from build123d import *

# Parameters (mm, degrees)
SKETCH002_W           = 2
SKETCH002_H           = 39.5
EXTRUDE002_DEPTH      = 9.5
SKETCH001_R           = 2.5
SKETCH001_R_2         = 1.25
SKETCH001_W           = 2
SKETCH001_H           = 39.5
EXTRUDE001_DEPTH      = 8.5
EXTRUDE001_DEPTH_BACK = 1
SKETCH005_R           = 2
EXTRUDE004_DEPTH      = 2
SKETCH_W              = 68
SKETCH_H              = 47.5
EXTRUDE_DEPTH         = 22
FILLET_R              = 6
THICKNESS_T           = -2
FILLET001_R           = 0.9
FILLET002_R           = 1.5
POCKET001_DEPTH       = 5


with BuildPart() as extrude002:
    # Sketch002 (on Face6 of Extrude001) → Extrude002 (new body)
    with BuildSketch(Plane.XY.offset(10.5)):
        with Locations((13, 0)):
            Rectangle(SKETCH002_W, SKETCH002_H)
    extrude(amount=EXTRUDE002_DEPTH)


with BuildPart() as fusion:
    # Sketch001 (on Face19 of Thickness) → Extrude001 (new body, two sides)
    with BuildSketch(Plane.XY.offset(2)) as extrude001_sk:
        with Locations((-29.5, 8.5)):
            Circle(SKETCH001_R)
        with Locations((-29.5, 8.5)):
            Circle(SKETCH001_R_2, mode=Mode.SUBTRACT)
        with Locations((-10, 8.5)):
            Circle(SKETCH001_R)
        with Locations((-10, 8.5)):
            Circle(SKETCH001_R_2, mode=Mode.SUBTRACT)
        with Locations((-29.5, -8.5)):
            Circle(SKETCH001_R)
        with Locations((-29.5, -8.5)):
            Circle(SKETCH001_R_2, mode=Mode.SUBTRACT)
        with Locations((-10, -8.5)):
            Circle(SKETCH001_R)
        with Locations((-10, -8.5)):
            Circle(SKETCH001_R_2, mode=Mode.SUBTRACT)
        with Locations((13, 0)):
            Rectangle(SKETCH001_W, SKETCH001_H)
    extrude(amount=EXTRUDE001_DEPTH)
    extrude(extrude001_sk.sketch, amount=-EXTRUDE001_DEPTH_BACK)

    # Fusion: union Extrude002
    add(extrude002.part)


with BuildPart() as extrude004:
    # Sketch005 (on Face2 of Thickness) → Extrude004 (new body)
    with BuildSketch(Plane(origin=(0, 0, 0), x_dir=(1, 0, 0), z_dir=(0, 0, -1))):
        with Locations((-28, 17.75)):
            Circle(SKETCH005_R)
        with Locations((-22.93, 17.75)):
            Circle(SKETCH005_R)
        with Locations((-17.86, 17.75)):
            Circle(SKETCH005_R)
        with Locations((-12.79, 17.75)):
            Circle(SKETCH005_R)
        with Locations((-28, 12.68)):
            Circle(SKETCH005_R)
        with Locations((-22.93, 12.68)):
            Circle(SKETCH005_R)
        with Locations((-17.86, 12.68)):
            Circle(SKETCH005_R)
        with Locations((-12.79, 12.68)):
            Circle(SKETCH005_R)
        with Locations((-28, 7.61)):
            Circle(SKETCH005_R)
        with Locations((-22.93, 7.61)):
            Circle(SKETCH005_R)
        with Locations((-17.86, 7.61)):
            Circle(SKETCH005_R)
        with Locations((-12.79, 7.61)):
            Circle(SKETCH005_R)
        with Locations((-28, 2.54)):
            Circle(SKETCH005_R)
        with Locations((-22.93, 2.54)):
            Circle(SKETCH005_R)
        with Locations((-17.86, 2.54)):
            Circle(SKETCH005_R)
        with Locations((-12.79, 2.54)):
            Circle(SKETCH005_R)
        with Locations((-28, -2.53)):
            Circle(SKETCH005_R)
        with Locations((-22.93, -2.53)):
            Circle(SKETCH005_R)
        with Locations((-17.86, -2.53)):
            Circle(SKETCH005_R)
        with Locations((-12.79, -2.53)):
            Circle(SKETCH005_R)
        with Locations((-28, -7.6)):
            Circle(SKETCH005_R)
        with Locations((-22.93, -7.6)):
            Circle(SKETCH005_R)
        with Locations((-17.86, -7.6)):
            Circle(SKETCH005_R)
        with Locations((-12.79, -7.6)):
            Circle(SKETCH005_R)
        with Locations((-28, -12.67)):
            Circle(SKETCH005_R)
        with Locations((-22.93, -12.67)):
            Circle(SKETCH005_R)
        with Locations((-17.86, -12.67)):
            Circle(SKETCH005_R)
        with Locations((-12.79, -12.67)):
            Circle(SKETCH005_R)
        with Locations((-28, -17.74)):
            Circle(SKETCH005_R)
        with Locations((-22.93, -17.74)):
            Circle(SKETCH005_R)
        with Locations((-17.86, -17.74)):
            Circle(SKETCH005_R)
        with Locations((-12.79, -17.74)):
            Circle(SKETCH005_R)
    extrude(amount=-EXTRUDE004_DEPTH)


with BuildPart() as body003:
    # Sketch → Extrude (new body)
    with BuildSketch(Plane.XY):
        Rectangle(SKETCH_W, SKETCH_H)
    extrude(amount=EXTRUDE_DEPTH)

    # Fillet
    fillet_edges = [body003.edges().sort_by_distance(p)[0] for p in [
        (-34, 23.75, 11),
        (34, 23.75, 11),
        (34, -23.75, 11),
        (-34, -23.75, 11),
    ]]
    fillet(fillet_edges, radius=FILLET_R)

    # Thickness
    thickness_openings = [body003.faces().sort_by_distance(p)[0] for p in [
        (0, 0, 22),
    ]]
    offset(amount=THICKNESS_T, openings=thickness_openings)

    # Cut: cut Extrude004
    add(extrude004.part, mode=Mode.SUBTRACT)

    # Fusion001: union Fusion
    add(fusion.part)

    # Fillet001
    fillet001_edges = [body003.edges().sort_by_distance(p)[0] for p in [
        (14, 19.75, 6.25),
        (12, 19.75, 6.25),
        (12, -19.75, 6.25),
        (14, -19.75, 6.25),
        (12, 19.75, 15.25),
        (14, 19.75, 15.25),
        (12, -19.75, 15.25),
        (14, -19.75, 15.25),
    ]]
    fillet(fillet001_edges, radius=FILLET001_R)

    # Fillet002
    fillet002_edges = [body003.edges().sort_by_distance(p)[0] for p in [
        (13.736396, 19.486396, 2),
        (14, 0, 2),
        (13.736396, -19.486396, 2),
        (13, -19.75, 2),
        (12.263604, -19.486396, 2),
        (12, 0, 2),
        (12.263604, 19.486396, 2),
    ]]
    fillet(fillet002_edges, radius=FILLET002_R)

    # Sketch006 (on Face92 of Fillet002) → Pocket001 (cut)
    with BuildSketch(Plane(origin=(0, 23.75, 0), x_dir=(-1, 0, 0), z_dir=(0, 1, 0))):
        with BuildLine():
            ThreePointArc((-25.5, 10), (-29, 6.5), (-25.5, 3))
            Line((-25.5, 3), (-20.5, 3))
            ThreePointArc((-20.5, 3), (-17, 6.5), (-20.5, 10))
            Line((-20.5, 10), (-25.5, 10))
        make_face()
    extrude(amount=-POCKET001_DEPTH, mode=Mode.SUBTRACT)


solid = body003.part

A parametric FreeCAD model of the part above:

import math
import FreeCAD as App
import Part
import Sketcher

V = App.Vector
Q = App.Units.Quantity


def edges_at(feature, points):
    """Names of the edges that pass closest to the given points."""
    edges = feature.Shape.Edges
    near = lambda p: min(range(len(edges)), key=lambda i: edges[i].distToShape(Part.Vertex(*p))[0])
    return sorted({f"Edge{near(p) + 1}" for p in points})


def faces_at(feature, points):
    """Names of the faces that lie closest to the given points."""
    faces = feature.Shape.Faces
    near = lambda p: min(range(len(faces)), key=lambda i: faces[i].distToShape(Part.Vertex(*p))[0])
    return sorted({f"Face{near(p) + 1}" for p in points})


def add_polygon(sketch, points):
    """Adds a closed chain of lines whose ends are joined by coincident constraints."""
    first, n = sketch.GeometryCount, len(points)
    for a, b in zip(points, points[1:] + points[:1]):
        sketch.addGeometry(Part.LineSegment(App.Vector(*a, 0), App.Vector(*b, 0)), False)
    for i in range(n):
        sketch.addConstraint(Sketcher.Constraint("Coincident", first + i, 2, first + (i + 1) % n, 1))

doc = App.newDocument("Part")
body = doc.addObject("PartDesign::Body", "Body")

# Sketch on XY plane
sketch1 = doc.addObject("Sketcher::SketchObject", "Sketch")
body.addObject(sketch1)
sketch1.AttachmentSupport = (doc.XY_Plane, [""])
sketch1.MapMode = "FlatFace"
sketch1.AttachmentOffset = App.Placement(V(0, 0, 10.5), App.Rotation())
add_polygon(sketch1, [(12, 19.8), (12, -19.8), (14, -19.8), (14, 19.8)])  # lines 0-3
sketch1.addConstraint([
    Sketcher.Constraint("Vertical", 0),
    Sketcher.Constraint("Horizontal", 1),
    Sketcher.Constraint("Vertical", 2),
    Sketcher.Constraint("Horizontal", 3),
    Sketcher.Constraint("DistanceX", 1, 1, 1, 2, Q("2 mm")),
    Sketcher.Constraint("DistanceY", 0, 2, 0, 1, Q("39.5 mm")),
    Sketcher.Constraint("DistanceX", -1, 1, 0, 2, Q("12 mm")),
    Sketcher.Constraint("DistanceY", 0, 2, -1, 1, Q("19.75 mm")),
])
pad1 = doc.addObject("PartDesign::Pad", "Pad")
body.addObject(pad1)
pad1.Profile = sketch1
pad1.Length = 9.5
body2 = doc.addObject("PartDesign::Body", "Body001")
body2.AllowCompound = True

# Sketch on XY plane
sketch2 = doc.addObject("Sketcher::SketchObject", "Sketch001")
body2.addObject(sketch2)
sketch2.AttachmentSupport = (doc.getObject("XY_Plane001"), [""])
sketch2.MapMode = "FlatFace"
sketch2.AttachmentOffset = App.Placement(V(0, 0, 2), App.Rotation())
sketch2.addGeometry(Part.Circle(V(-29.5, 8.5, 0), V(0, 0, 1), 2.5), False)  # 0
sketch2.addGeometry(Part.Circle(V(-29.5, 8.5, 0), V(0, 0, 1), 1.2), False)  # 1
sketch2.addGeometry(Part.Circle(V(-10, 8.5, 0), V(0, 0, 1), 2.5), False)  # 2
sketch2.addGeometry(Part.Circle(V(-10, 8.5, 0), V(0, 0, 1), 1.2), False)  # 3
sketch2.addGeometry(Part.Circle(V(-29.5, -8.5, 0), V(0, 0, 1), 2.5), False)  # 4
sketch2.addGeometry(Part.Circle(V(-29.5, -8.5, 0), V(0, 0, 1), 1.2), False)  # 5
sketch2.addGeometry(Part.Circle(V(-10, -8.5, 0), V(0, 0, 1), 2.5), False)  # 6
sketch2.addGeometry(Part.Circle(V(-10, -8.5, 0), V(0, 0, 1), 1.2), False)  # 7
add_polygon(sketch2, [(12, 19.8), (12, -19.8), (14, -19.8), (14, 19.8)])  # lines 8-11
sketch2.addConstraint([
    Sketcher.Constraint("Vertical", 8),
    Sketcher.Constraint("Horizontal", 9),
    Sketcher.Constraint("Vertical", 10),
    Sketcher.Constraint("Horizontal", 11),
    Sketcher.Constraint("Coincident", 1, 3, 0, 3),
    Sketcher.Constraint("Coincident", 3, 3, 2, 3),
    Sketcher.Constraint("Coincident", 5, 3, 4, 3),
    Sketcher.Constraint("Coincident", 7, 3, 6, 3),
    Sketcher.Constraint("Equal", 0, 2),
    Sketcher.Constraint("Equal", 1, 3),
    Sketcher.Constraint("Equal", 2, 4),
    Sketcher.Constraint("Equal", 3, 5),
    Sketcher.Constraint("Equal", 4, 6),
    Sketcher.Constraint("Equal", 5, 7),
    Sketcher.Constraint("Symmetric", 0, 3, 4, 3, -1),
    Sketcher.Constraint("Symmetric", 2, 3, 6, 3, -1),
    Sketcher.Constraint("Horizontal", 1, 3, 2, 3),
    Sketcher.Constraint("Diameter", 0, Q("5 mm")),
    Sketcher.Constraint("Diameter", 1, Q("2.5 mm")),
    Sketcher.Constraint("DistanceX", 9, 1, 9, 2, Q("2 mm")),
    Sketcher.Constraint("DistanceY", 8, 2, 8, 1, Q("39.5 mm")),
    Sketcher.Constraint("DistanceX", 2, 3, -1, 1, Q("10 mm")),
    Sketcher.Constraint("DistanceX", -1, 1, 8, 2, Q("12 mm")),
    Sketcher.Constraint("DistanceY", 4, 3, 0, 3, Q("17 mm")),
    Sketcher.Constraint("DistanceX", 0, 3, -1, 1, Q("29.5 mm")),
    Sketcher.Constraint("DistanceY", 8, 2, -1, 1, Q("19.75 mm")),
])
pad2 = doc.addObject("PartDesign::Pad", "Pad001")
body2.addObject(pad2)
pad2.Profile = sketch2
pad2.Type = "TwoLengths"
pad2.Length = 8.5
pad2.Length2 = 1
doc.recompute()

boolean = doc.addObject("PartDesign::Boolean", "Boolean")
body2.addObject(boolean)
boolean.Type = "Fuse"
boolean.addObjects([body])
body3 = doc.addObject("PartDesign::Body", "Body002")
body3.AllowCompound = True

# Sketch on XY plane
sketch3 = doc.addObject("Sketcher::SketchObject", "Sketch002")
body3.addObject(sketch3)
sketch3.AttachmentSupport = (doc.getObject("XY_Plane002"), [""])
sketch3.MapMode = "FlatFace"
sketch3.addGeometry([
    Part.Circle(V(-28, -17.8, 0), V(0, 0, 1), 2),  # 0
    Part.Circle(V(-22.9, -17.8, 0), V(0, 0, 1), 2),  # 1
    Part.Circle(V(-17.9, -17.8, 0), V(0, 0, 1), 2),  # 2
    Part.Circle(V(-12.8, -17.8, 0), V(0, 0, 1), 2),  # 3
    Part.Circle(V(-28, -12.7, 0), V(0, 0, 1), 2),  # 4
    Part.Circle(V(-22.9, -12.7, 0), V(0, 0, 1), 2),  # 5
    Part.Circle(V(-17.9, -12.7, 0), V(0, 0, 1), 2),  # 6
    Part.Circle(V(-12.8, -12.7, 0), V(0, 0, 1), 2),  # 7
    Part.Circle(V(-28, -7.6, 0), V(0, 0, 1), 2),  # 8
    Part.Circle(V(-22.9, -7.6, 0), V(0, 0, 1), 2),  # 9
    Part.Circle(V(-17.9, -7.6, 0), V(0, 0, 1), 2),  # 10
    Part.Circle(V(-12.8, -7.6, 0), V(0, 0, 1), 2),  # 11
    Part.Circle(V(-28, -2.5, 0), V(0, 0, 1), 2),  # 12
    Part.Circle(V(-22.9, -2.5, 0), V(0, 0, 1), 2),  # 13
    Part.Circle(V(-17.9, -2.5, 0), V(0, 0, 1), 2),  # 14
    Part.Circle(V(-12.8, -2.5, 0), V(0, 0, 1), 2),  # 15
    Part.Circle(V(-28, 2.5, 0), V(0, 0, 1), 2),  # 16
    Part.Circle(V(-22.9, 2.5, 0), V(0, 0, 1), 2),  # 17
    Part.Circle(V(-17.9, 2.5, 0), V(0, 0, 1), 2),  # 18
    Part.Circle(V(-12.8, 2.5, 0), V(0, 0, 1), 2),  # 19
    Part.Circle(V(-28, 7.6, 0), V(0, 0, 1), 2),  # 20
    Part.Circle(V(-22.9, 7.6, 0), V(0, 0, 1), 2),  # 21
    Part.Circle(V(-17.9, 7.6, 0), V(0, 0, 1), 2),  # 22
    Part.Circle(V(-12.8, 7.6, 0), V(0, 0, 1), 2),  # 23
    Part.Circle(V(-28, 12.7, 0), V(0, 0, 1), 2),  # 24
    Part.Circle(V(-22.9, 12.7, 0), V(0, 0, 1), 2),  # 25
    Part.Circle(V(-17.9, 12.7, 0), V(0, 0, 1), 2),  # 26
    Part.Circle(V(-12.8, 12.7, 0), V(0, 0, 1), 2),  # 27
    Part.Circle(V(-28, 17.7, 0), V(0, 0, 1), 2),  # 28
    Part.Circle(V(-22.9, 17.7, 0), V(0, 0, 1), 2),  # 29
    Part.Circle(V(-17.9, 17.7, 0), V(0, 0, 1), 2),  # 30
    Part.Circle(V(-12.8, 17.7, 0), V(0, 0, 1), 2),  # 31
], False)
sketch3.addConstraint([
    Sketcher.Constraint("Equal", 0, 1),
    Sketcher.Constraint("Equal", 1, 2),
    Sketcher.Constraint("Equal", 2, 3),
    Sketcher.Constraint("Equal", 3, 4),
    Sketcher.Constraint("Equal", 4, 5),
    Sketcher.Constraint("Equal", 5, 6),
    Sketcher.Constraint("Equal", 6, 7),
    Sketcher.Constraint("Equal", 7, 8),
    Sketcher.Constraint("Equal", 8, 9),
    Sketcher.Constraint("Equal", 9, 10),
    Sketcher.Constraint("Equal", 10, 11),
    Sketcher.Constraint("Equal", 11, 12),
    Sketcher.Constraint("Equal", 12, 13),
    Sketcher.Constraint("Equal", 13, 14),
    Sketcher.Constraint("Equal", 14, 15),
    Sketcher.Constraint("Equal", 15, 16),
    Sketcher.Constraint("Equal", 16, 17),
    Sketcher.Constraint("Equal", 17, 18),
    Sketcher.Constraint("Equal", 18, 19),
    Sketcher.Constraint("Equal", 19, 20),
    Sketcher.Constraint("Equal", 20, 21),
    Sketcher.Constraint("Equal", 21, 22),
    Sketcher.Constraint("Equal", 22, 23),
    Sketcher.Constraint("Equal", 23, 24),
    Sketcher.Constraint("Equal", 24, 25),
    Sketcher.Constraint("Equal", 25, 26),
    Sketcher.Constraint("Equal", 26, 27),
    Sketcher.Constraint("Equal", 27, 28),
    Sketcher.Constraint("Equal", 28, 29),
    Sketcher.Constraint("Equal", 29, 30),
    Sketcher.Constraint("Equal", 30, 31),
    Sketcher.Constraint("Horizontal", 0, 3, 1, 3),
    Sketcher.Constraint("Horizontal", 1, 3, 2, 3),
    Sketcher.Constraint("Horizontal", 2, 3, 3, 3),
    Sketcher.Constraint("Horizontal", 4, 3, 5, 3),
    Sketcher.Constraint("Horizontal", 5, 3, 6, 3),
    Sketcher.Constraint("Horizontal", 6, 3, 7, 3),
    Sketcher.Constraint("Horizontal", 8, 3, 9, 3),
    Sketcher.Constraint("Horizontal", 9, 3, 10, 3),
    Sketcher.Constraint("Horizontal", 10, 3, 11, 3),
    Sketcher.Constraint("Horizontal", 12, 3, 13, 3),
    Sketcher.Constraint("Horizontal", 13, 3, 14, 3),
    Sketcher.Constraint("Horizontal", 14, 3, 15, 3),
    Sketcher.Constraint("Horizontal", 16, 3, 17, 3),
    Sketcher.Constraint("Horizontal", 17, 3, 18, 3),
    Sketcher.Constraint("Horizontal", 18, 3, 19, 3),
    Sketcher.Constraint("Horizontal", 20, 3, 21, 3),
    Sketcher.Constraint("Horizontal", 21, 3, 22, 3),
    Sketcher.Constraint("Horizontal", 22, 3, 23, 3),
    Sketcher.Constraint("Horizontal", 24, 3, 25, 3),
    Sketcher.Constraint("Horizontal", 25, 3, 26, 3),
    Sketcher.Constraint("Horizontal", 26, 3, 27, 3),
    Sketcher.Constraint("Horizontal", 28, 3, 29, 3),
    Sketcher.Constraint("Horizontal", 29, 3, 30, 3),
    Sketcher.Constraint("Horizontal", 30, 3, 31, 3),
    Sketcher.Constraint("Vertical", 0, 3, 4, 3),
    Sketcher.Constraint("Vertical", 1, 3, 5, 3),
    Sketcher.Constraint("Vertical", 2, 3, 6, 3),
    Sketcher.Constraint("Vertical", 3, 3, 7, 3),
    Sketcher.Constraint("Vertical", 4, 3, 8, 3),
    Sketcher.Constraint("Vertical", 5, 3, 9, 3),
    Sketcher.Constraint("Vertical", 6, 3, 10, 3),
    Sketcher.Constraint("Vertical", 7, 3, 11, 3),
    Sketcher.Constraint("Vertical", 8, 3, 12, 3),
    Sketcher.Constraint("Vertical", 9, 3, 13, 3),
    Sketcher.Constraint("Vertical", 10, 3, 14, 3),
    Sketcher.Constraint("Vertical", 11, 3, 15, 3),
    Sketcher.Constraint("Vertical", 12, 3, 16, 3),
    Sketcher.Constraint("Vertical", 13, 3, 17, 3),
    Sketcher.Constraint("Vertical", 14, 3, 18, 3),
    Sketcher.Constraint("Vertical", 15, 3, 19, 3),
    Sketcher.Constraint("Vertical", 16, 3, 20, 3),
    Sketcher.Constraint("Vertical", 17, 3, 21, 3),
    Sketcher.Constraint("Vertical", 18, 3, 22, 3),
    Sketcher.Constraint("Vertical", 19, 3, 23, 3),
    Sketcher.Constraint("Vertical", 20, 3, 24, 3),
    Sketcher.Constraint("Vertical", 21, 3, 25, 3),
    Sketcher.Constraint("Vertical", 22, 3, 26, 3),
    Sketcher.Constraint("Vertical", 23, 3, 27, 3),
    Sketcher.Constraint("Vertical", 24, 3, 28, 3),
    Sketcher.Constraint("Vertical", 25, 3, 29, 3),
    Sketcher.Constraint("Vertical", 26, 3, 30, 3),
    Sketcher.Constraint("Vertical", 27, 3, 31, 3),
    Sketcher.Constraint("Diameter", 0, Q("4 mm")),
    Sketcher.Constraint("DistanceX", 0, 3, -1, 1, Q("28 mm")),
    Sketcher.Constraint("DistanceY", -1, 1, 20, 3, Q("7.6 mm")),
    Sketcher.Constraint("DistanceY", 0, 3, -1, 1, Q("17.75 mm")),
    Sketcher.Constraint("DistanceX", 1, 3, -1, 1, Q("22.93 mm")),
    Sketcher.Constraint("DistanceX", 2, 3, -1, 1, Q("17.86 mm")),
    Sketcher.Constraint("DistanceX", 3, 3, -1, 1, Q("12.79 mm")),
    Sketcher.Constraint("DistanceY", 4, 3, -1, 1, Q("12.68 mm")),
    Sketcher.Constraint("DistanceY", 8, 3, -1, 1, Q("7.61 mm")),
    Sketcher.Constraint("DistanceY", 12, 3, -1, 1, Q("2.54 mm")),
    Sketcher.Constraint("DistanceY", -1, 1, 16, 3, Q("2.53 mm")),
    Sketcher.Constraint("DistanceY", -1, 1, 24, 3, Q("12.67 mm")),
    Sketcher.Constraint("DistanceY", -1, 1, 28, 3, Q("17.74 mm")),
])
pad3 = doc.addObject("PartDesign::Pad", "Pad002")
body3.addObject(pad3)
pad3.Profile = sketch3
pad3.Length = 2
body4 = doc.addObject("PartDesign::Body", "Body003")

# Sketch on XY plane
sketch4 = doc.addObject("Sketcher::SketchObject", "Sketch003")
body4.addObject(sketch4)
sketch4.AttachmentSupport = (doc.getObject("XY_Plane003"), [""])
sketch4.MapMode = "FlatFace"
add_polygon(sketch4, [(-34, 24), (-34, -24), (34, -24), (34, 24)])  # lines 0-3
sketch4.addConstraint([
    Sketcher.Constraint("Vertical", 0),
    Sketcher.Constraint("Horizontal", 1),
    Sketcher.Constraint("Vertical", 2),
    Sketcher.Constraint("Horizontal", 3),
    Sketcher.Constraint("Symmetric", 0, 2, 2, 2, -1, 1),
    Sketcher.Constraint("DistanceX", 1, 1, 1, 2, Q("68 mm")),
    Sketcher.Constraint("DistanceY", 0, 2, 0, 1, Q("47.5 mm")),
])
pad4 = doc.addObject("PartDesign::Pad", "Pad003")
body4.addObject(pad4)
pad4.Profile = sketch4
pad4.Length = 22
doc.recompute()

fillet = doc.addObject("PartDesign::Fillet", "Fillet")
body4.addObject(fillet)
fillet.Base = (pad4, edges_at(pad4, [
    (-34, 23.75, 11),
    (34, 23.75, 11),
    (34, -23.75, 11),
    (-34, -23.75, 11),
]))
fillet.Radius = 6
doc.recompute()

thickness = doc.addObject("PartDesign::Thickness", "Thickness")
body4.addObject(thickness)
thickness.Base = (fillet, faces_at(fillet, [(0, 0, 22)]))
thickness.Value = 2
thickness.Reversed = True
thickness.Join = "Arc"
doc.recompute()

boolean2 = doc.addObject("PartDesign::Boolean", "Boolean001")
body4.addObject(boolean2)
boolean2.Type = "Cut"
boolean2.addObjects([body3])
doc.recompute()

boolean3 = doc.addObject("PartDesign::Boolean", "Boolean002")
body4.addObject(boolean3)
boolean3.Type = "Fuse"
boolean3.addObjects([body2])
doc.recompute()

fillet2 = doc.addObject("PartDesign::Fillet", "Fillet001")
body4.addObject(fillet2)
fillet2.Base = (boolean3, edges_at(boolean3, [
    (14, 19.75, 11),
    (12, 19.75, 11),
    (12, -19.75, 11),
    (14, -19.75, 11),
    (12, 19.75, 11),
    (14, 19.75, 11),
    (12, -19.75, 11),
    (14, -19.75, 11),
]))
fillet2.Radius = 0.9
doc.recompute()

fillet3 = doc.addObject("PartDesign::Fillet", "Fillet002")
body4.addObject(fillet3)
fillet3.Base = (fillet2, edges_at(fillet2, [
    (13.736, 19.486, 2),
    (14, 0, 2),
    (13.736, -19.486, 2),
    (13, -19.75, 2),
    (12.264, -19.486, 2),
    (12, 0, 2),
    (12.264, 19.486, 2),
]))
fillet3.Radius = 1.5

# Sketch on XZ plane
sketch5 = doc.addObject("Sketcher::SketchObject", "Sketch004")
body4.addObject(sketch5)
sketch5.AttachmentSupport = (doc.getObject("XZ_Plane003"), [""])
sketch5.MapMode = "FlatFace"
sketch5.AttachmentOffset = App.Placement(V(0, 0, -23.75), App.Rotation())
sketch5.addGeometry([
    Part.ArcOfCircle(Part.Circle(V(25.5, 6.5, 0), V(0, 0, 1), 3.5), math.radians(-90), math.radians(90)),
    Part.LineSegment(V(25.5, 3, 0), V(20.5, 3, 0)),
    Part.ArcOfCircle(Part.Circle(V(20.5, 6.5, 0), V(0, 0, 1), 3.5), math.radians(90), math.radians(270)),
    Part.LineSegment(V(20.5, 10, 0), V(25.5, 10, 0)),
], False)
sketch5.addConstraint([
    Sketcher.Constraint("Tangent", 0, 1, 1, 1),
    Sketcher.Constraint("Tangent", 1, 2, 2, 2),
    Sketcher.Constraint("Tangent", 2, 1, 3, 1),
    Sketcher.Constraint("Tangent", 3, 2, 0, 2),
    Sketcher.Constraint("Horizontal", 1),
    Sketcher.Constraint("Horizontal", 3),
    Sketcher.Constraint("Radius", 0, Q("3.5 mm")),
    Sketcher.Constraint("DistanceX", 1, 2, 1, 1, Q("5 mm")),
    Sketcher.Constraint("DistanceY", -1, 1, 0, 1, Q("3 mm")),
    Sketcher.Constraint("DistanceX", -1, 1, 0, 3, Q("25.5 mm")),
])
pocket1 = doc.addObject("PartDesign::Pocket", "Pocket")
body4.addObject(pocket1)
pocket1.Profile = sketch5
pocket1.Length = 5
pocket1.Reversed = True

doc.recompute()
